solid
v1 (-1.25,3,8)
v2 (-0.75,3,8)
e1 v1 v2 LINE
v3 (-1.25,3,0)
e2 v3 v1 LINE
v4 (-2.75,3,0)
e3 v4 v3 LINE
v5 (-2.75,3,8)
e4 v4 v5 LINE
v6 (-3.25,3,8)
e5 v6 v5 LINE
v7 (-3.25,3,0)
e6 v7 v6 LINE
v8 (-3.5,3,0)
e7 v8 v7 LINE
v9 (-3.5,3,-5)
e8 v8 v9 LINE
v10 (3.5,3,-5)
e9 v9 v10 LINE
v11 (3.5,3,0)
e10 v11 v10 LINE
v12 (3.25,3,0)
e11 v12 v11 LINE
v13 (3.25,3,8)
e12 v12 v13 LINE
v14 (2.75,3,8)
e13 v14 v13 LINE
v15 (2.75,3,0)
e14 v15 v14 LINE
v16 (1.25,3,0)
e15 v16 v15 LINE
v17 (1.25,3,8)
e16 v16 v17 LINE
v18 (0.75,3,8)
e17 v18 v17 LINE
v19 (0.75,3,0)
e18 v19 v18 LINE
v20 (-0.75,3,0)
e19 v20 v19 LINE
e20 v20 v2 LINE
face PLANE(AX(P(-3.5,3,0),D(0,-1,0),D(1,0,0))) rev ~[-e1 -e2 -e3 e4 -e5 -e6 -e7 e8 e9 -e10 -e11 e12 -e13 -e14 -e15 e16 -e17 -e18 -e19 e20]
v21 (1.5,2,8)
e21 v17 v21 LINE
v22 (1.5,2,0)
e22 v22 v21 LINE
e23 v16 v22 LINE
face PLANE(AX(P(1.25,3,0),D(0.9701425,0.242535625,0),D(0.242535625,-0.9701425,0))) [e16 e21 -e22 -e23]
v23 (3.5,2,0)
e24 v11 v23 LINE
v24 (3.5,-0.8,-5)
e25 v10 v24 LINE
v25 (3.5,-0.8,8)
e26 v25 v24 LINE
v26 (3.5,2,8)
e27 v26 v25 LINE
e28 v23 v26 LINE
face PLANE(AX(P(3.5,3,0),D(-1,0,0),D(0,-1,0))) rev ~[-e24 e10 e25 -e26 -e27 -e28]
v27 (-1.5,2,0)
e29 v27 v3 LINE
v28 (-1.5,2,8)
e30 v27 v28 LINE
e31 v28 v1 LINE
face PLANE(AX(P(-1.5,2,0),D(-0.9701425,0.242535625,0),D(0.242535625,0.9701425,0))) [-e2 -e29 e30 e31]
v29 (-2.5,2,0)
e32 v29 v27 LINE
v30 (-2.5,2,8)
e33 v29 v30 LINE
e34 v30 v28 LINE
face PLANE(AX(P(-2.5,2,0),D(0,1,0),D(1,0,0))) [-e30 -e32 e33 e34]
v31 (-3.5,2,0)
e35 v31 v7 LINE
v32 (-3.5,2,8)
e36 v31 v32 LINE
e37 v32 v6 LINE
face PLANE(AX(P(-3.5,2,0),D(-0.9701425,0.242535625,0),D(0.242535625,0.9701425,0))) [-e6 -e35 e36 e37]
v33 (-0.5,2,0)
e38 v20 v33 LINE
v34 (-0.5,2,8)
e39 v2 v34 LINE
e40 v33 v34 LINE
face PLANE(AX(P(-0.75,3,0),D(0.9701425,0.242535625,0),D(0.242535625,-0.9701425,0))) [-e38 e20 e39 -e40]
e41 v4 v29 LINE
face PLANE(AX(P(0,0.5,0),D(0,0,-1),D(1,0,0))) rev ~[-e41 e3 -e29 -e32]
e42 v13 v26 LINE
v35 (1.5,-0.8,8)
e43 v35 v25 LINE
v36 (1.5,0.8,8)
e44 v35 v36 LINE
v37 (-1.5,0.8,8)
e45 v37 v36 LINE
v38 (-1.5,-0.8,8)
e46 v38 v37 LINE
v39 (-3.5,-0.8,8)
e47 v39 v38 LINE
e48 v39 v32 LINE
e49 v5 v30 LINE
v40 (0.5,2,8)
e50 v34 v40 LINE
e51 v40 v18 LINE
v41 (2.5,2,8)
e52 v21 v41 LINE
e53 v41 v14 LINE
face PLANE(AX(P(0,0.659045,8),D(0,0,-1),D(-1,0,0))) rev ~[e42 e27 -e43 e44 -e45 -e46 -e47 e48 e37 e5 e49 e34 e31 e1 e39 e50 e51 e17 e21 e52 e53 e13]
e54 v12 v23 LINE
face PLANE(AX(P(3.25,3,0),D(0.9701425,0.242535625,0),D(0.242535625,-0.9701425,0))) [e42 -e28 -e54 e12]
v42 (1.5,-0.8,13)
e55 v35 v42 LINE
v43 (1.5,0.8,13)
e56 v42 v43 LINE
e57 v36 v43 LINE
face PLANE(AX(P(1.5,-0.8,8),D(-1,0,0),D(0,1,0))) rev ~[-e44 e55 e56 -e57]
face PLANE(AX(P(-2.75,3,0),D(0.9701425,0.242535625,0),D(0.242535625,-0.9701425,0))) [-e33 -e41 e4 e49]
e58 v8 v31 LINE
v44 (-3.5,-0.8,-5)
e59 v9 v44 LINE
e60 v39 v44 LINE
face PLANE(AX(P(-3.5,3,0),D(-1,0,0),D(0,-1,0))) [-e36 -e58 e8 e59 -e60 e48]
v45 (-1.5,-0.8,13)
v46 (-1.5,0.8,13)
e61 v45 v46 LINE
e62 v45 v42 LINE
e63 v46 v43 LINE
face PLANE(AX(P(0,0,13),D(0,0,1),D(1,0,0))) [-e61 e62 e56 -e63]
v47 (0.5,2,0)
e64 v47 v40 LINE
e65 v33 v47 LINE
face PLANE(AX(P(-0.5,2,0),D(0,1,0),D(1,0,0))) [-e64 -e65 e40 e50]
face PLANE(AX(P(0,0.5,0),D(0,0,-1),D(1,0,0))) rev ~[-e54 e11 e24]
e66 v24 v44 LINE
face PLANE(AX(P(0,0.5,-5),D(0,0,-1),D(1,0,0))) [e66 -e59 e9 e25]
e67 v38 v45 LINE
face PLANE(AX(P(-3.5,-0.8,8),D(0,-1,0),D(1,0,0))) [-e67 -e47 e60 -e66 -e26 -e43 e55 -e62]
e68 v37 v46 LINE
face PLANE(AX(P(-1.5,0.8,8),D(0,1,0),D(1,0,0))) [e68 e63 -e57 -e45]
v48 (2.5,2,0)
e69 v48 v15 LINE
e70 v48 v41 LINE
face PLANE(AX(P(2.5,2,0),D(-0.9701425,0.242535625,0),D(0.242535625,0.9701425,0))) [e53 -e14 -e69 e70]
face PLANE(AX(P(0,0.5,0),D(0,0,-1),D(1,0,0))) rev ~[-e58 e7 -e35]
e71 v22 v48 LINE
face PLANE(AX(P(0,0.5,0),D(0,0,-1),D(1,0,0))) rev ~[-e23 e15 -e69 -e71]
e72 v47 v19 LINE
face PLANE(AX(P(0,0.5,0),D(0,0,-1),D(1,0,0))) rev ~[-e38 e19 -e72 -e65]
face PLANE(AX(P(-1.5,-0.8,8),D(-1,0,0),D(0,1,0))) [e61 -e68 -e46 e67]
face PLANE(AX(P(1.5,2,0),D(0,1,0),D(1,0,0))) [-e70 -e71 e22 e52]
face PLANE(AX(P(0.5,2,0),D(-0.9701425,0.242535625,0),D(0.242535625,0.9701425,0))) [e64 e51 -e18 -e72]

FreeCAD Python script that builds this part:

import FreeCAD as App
import Part
import Sketcher
from FreeCAD import Vector


def add_polygon(sketch, points):
    """Adds a closed chain of lines whose ends are joined by coincident constraints."""
    first, n = sketch.GeometryCount, len(points)
    for a, b in zip(points, points[1:] + points[:1]):
        sketch.addGeometry(Part.LineSegment(App.Vector(*a, 0), App.Vector(*b, 0)), False)
    for i in range(n):
        sketch.addConstraint(Sketcher.Constraint("Coincident", first + i, 2, first + (i + 1) % n, 1))

doc = App.newDocument("Part")
body = doc.addObject("PartDesign::Body", "Body")

sketch1 = doc.addObject("Sketcher::SketchObject", "Sketch")
body.addObject(sketch1)
sketch1.AttachmentSupport = (doc.XY_Plane, [""])
sketch1.MapMode = "FlatFace"
add_polygon(sketch1, [(-3.25, 3), (-3.5, 2), (-3.5, -2), (3.5, -2), (3.5, 2), (3.25, 3), (2.75, 3), (2.5, 2), (1.5, 2), (1.25, 3), (0.75, 3), (0.5, 2), (-0.5, 2), (-0.75, 3), (-1.25, 3), (-1.5, 2), (-2.5, 2), (-2.75, 3)])
sketch1.addConstraint([
    Sketcher.Constraint("Vertical", 1),
    Sketcher.Constraint("Horizontal", 2),
    Sketcher.Constraint("Vertical", 3),
    Sketcher.Constraint("Horizontal", 5),
    Sketcher.Constraint("Horizontal", 7),
    Sketcher.Constraint("Horizontal", 9),
    Sketcher.Constraint("Horizontal", 11),
    Sketcher.Constraint("Horizontal", 13),
    Sketcher.Constraint("Horizontal", 15),
    Sketcher.Constraint("Horizontal", 17),
    Sketcher.Constraint("Symmetric", 0, 2, 2, 2, -1, 1),
    Sketcher.Constraint("Symmetric", 9, 2, 12, 2, -2),
    Sketcher.Constraint("Symmetric", 7, 2, 14, 2, -2),
    Sketcher.Constraint("Symmetric", 5, 2, 16, 2, -2),
    Sketcher.Constraint("Parallel", 0, 6),
    Sketcher.Constraint("Parallel", 4, 8),
    Sketcher.Constraint("Parallel", 6, 10),
    Sketcher.Constraint("Parallel", 8, 12),
    Sketcher.Constraint("Parallel", 10, 14),
    Sketcher.Constraint("Parallel", 12, 16),
    Sketcher.Constraint("Horizontal", 0, 2, 3, 2),
    Sketcher.Constraint("Horizontal", 3, 2, 6, 2),
    Sketcher.Constraint("Horizontal", 5, 2, 8, 2),
    Sketcher.Constraint("Horizontal", 7, 2, 10, 2),
    Sketcher.Constraint("Equal", 5, 9),
    Sketcher.Constraint("Equal", 7, 11),
    Sketcher.Constraint("Equal", 9, 13),
    Sketcher.Constraint("DistanceX", 2, 1, 2, 2, 7.0),
    Sketcher.Constraint("DistanceX", 7, 2, 7, 1, 1.0),
    Sketcher.Constraint("DistanceY", 1, 2, 1, 1, 4.0),
    Sketcher.Constraint("DistanceX", 5, 2, 5, 1, 0.5),
    Sketcher.Constraint("DistanceY", -1, 1, 4, 2, 3.0),
])
pad1 = doc.addObject("PartDesign::Pad", "Pad")
body.addObject(pad1)
pad1.Profile = sketch1
pad1.Length = 8

sketch2 = doc.addObject("Sketcher::SketchObject", "Sketch001")
body.addObject(sketch2)
sketch2.AttachmentSupport = (doc.XY_Plane, [""])
sketch2.MapMode = "FlatFace"
add_polygon(sketch2, [(-3.5, -2), (-3.5, 3), (3.5, 3), (3.5, -2)])
sketch2.addConstraint([
    Sketcher.Constraint("Vertical", 0),
    Sketcher.Constraint("Horizontal", 1),
    Sketcher.Constraint("Vertical", 2),
    Sketcher.Constraint("Horizontal", 3),
    Sketcher.Constraint("DistanceX", 1, 1, 1, 2, 7.0),
    Sketcher.Constraint("DistanceY", 0, 1, 0, 2, 5.0),
    Sketcher.Constraint("DistanceY", -1, 1, 0, 2, 3.0),
    Sketcher.Constraint("DistanceX", 0, 2, -1, 1, 3.5),
])
pad2 = doc.addObject("PartDesign::Pad", "Pad001")
body.addObject(pad2)
pad2.Profile = sketch2
pad2.Length = 5
pad2.Reversed = True

sketch3 = doc.addObject("Sketcher::SketchObject", "Sketch002")
body.addObject(sketch3)
sketch3.AttachmentSupport = (doc.XY_Plane, [""])
sketch3.MapMode = "FlatFace"
sketch3.AttachmentOffset = App.Placement(Vector(0, 0, 8), App.Rotation())
add_polygon(sketch3, [(-1.5, 0.8), (-1.5, -0.8), (1.5, -0.8), (1.5, 0.8)])
sketch3.addConstraint([
    Sketcher.Constraint("Vertical", 0),
    Sketcher.Constraint("Horizontal", 1),
    Sketcher.Constraint("Vertical", 2),
    Sketcher.Constraint("Horizontal", 3),
    Sketcher.Constraint("Symmetric", 0, 2, 2, 2, -1, 1),
    Sketcher.Constraint("DistanceX", 1, 1, 1, 2, 3.0),
    Sketcher.Constraint("DistanceY", 0, 2, 0, 1, 1.6),
])
pad3 = doc.addObject("PartDesign::Pad", "Pad002")
body.addObject(pad3)
pad3.Profile = sketch3
pad3.Length = 5

sketch4 = doc.addObject("Sketcher::SketchObject", "Sketch003")
body.addObject(sketch4)
sketch4.AttachmentSupport = (doc.XY_Plane, [""])
sketch4.MapMode = "FlatFace"
sketch4.AttachmentOffset = App.Placement(Vector(0, 0, 8), App.Rotation())
add_polygon(sketch4, [(-3.5, -0.8), (-3.5, -2), (3.5, -2), (3.5, -0.8)])
sketch4.addConstraint([
    Sketcher.Constraint("Vertical", 0),
    Sketcher.Constraint("Horizontal", 1),
    Sketcher.Constraint("Vertical", 2),
    Sketcher.Constraint("Horizontal", 3),
    Sketcher.Constraint("DistanceX", 1, 1, 1, 2, 7.0),
    Sketcher.Constraint("DistanceY", 0, 2, 0, 1, 1.2),
    Sketcher.Constraint("DistanceY", 0, 2, -1, 1, 2.0),
    Sketcher.Constraint("DistanceX", 0, 2, -1, 1, 3.5),
])
pocket1 = doc.addObject("PartDesign::Pocket", "Pocket")
body.addObject(pocket1)
pocket1.Profile = sketch4
pocket1.Type = "ThroughAll"

doc.recompute()
